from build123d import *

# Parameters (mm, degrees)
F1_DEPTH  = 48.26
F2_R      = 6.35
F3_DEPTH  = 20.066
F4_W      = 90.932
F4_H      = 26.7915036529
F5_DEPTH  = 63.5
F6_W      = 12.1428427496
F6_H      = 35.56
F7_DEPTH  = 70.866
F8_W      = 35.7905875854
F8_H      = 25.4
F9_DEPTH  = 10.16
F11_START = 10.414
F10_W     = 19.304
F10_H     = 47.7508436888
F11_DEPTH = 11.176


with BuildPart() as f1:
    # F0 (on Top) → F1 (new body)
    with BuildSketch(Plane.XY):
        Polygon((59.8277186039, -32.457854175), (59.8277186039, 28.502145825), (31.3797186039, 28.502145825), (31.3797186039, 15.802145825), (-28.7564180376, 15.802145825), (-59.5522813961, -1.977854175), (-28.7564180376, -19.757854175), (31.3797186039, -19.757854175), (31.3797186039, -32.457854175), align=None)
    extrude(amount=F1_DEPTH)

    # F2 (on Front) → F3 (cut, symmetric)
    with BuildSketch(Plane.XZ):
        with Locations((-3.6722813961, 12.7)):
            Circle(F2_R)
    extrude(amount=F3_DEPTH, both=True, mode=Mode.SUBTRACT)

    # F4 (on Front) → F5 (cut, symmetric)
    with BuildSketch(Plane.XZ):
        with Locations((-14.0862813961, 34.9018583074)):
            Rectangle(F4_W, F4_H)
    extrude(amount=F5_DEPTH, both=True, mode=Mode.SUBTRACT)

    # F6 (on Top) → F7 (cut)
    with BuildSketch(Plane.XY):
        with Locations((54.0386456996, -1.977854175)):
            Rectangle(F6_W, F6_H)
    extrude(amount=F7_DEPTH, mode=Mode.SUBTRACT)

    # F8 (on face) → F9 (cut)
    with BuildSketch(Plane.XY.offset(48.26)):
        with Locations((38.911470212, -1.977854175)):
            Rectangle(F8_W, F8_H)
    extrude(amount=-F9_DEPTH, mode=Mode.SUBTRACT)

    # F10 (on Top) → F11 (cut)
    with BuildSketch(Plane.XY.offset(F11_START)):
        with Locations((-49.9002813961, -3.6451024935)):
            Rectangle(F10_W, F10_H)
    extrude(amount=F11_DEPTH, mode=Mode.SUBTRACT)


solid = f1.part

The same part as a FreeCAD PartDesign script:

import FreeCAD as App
import Part
import Sketcher

V = App.Vector
Q = App.Units.Quantity


def add_polygon(sketch, points):
    """Adds a closed chain of lines whose ends are joined by coincident constraints."""
    first, n = sketch.GeometryCount, len(points)
    for a, b in zip(points, points[1:] + points[:1]):
        sketch.addGeometry(Part.LineSegment(App.Vector(*a, 0), App.Vector(*b, 0)), False)
    for i in range(n):
        sketch.addConstraint(Sketcher.Constraint("Coincident", first + i, 2, first + (i + 1) % n, 1))

doc = App.newDocument("Part")
body = doc.addObject("PartDesign::Body", "Body")

# Sketch on XY plane
sketch1 = doc.addObject("Sketcher::SketchObject", "Sketch")
body.addObject(sketch1)
sketch1.AttachmentSupport = (doc.XY_Plane, [""])
sketch1.MapMode = "FlatFace"
add_polygon(sketch1, [(59.827719, -32.457854), (59.827719, 28.502146), (31.379719, 28.502146), (31.379719, 15.802146), (-28.756418, 15.802146), (-59.552281, -1.977854), (-28.756418, -19.757854), (31.379719, -19.757854), (31.379719, -32.457854)])  # lines 0-8
sketch1.addConstraint([
    Sketcher.Constraint("Vertical", 0),
    Sketcher.Constraint("Horizontal", 1),
    Sketcher.Constraint("Vertical", 2),
    Sketcher.Constraint("Horizontal", 3),
    Sketcher.Constraint("Horizontal", 6),
    Sketcher.Constraint("Vertical", 7),
    Sketcher.Constraint("Horizontal", 8),
    Sketcher.Constraint("Vertical", 3, 2, 5, 2),
    Sketcher.Constraint("Vertical", 2, 2, 6, 2),
    Sketcher.Constraint("Equal", 2, 7),
    Sketcher.Constraint("Equal", 4, 5),
    Sketcher.Constraint("DistanceY", 0, 1, 0, 2, Q("2.4 in")),
    Sketcher.Constraint("DistanceY", 2, 2, 2, 1, Q("0.5 in")),
    Sketcher.Constraint("Angle", 4, Q("-150 deg")),
    Sketcher.Constraint("DistanceX", 1, 2, 1, 1, Q("1.12 in")),
    Sketcher.Constraint("DistanceX", 4, 2, 0, 2, Q("4.7 in")),
    Sketcher.Constraint("DistanceX", -1, 1, 0, 2, Q("59.827719 mm")),
    Sketcher.Constraint("DistanceY", -1, 1, 0, 2, Q("28.502146 mm")),
])
pad1 = doc.addObject("PartDesign::Pad", "Pad")
body.addObject(pad1)
pad1.Profile = sketch1
pad1.Length = Q("1.9 in")

# Sketch on XZ plane
sketch2 = doc.addObject("Sketcher::SketchObject", "Sketch001")
body.addObject(sketch2)
sketch2.AttachmentSupport = (doc.XZ_Plane, [""])
sketch2.MapMode = "FlatFace"
sketch2.addGeometry(Part.Circle(V(-3.672281, 12.7, 0), V(0, 0, 1), 6.35), False)
sketch2.addConstraint([
    Sketcher.Constraint("Diameter", 0, Q("0.5 in")),
    Sketcher.Constraint("DistanceY", -1, 1, 0, 3, Q("0.5 in")),
    Sketcher.Constraint("DistanceX", 0, 3, -1, 1, Q("3.672281 mm")),
])
pocket1 = doc.addObject("PartDesign::Pocket", "Pocket")
body.addObject(pocket1)
pocket1.Profile = sketch2
pocket1.Length = Q("1.58 in")
pocket1.Midplane = True

# Sketch on XZ plane
sketch3 = doc.addObject("Sketcher::SketchObject", "Sketch002")
body.addObject(sketch3)
sketch3.AttachmentSupport = (doc.XZ_Plane, [""])
sketch3.MapMode = "FlatFace"
add_polygon(sketch3, [(-59.552281, 48.29761), (-59.552281, 21.506106), (31.379719, 21.506106), (31.379719, 48.29761)])  # lines 0-3
sketch3.addConstraint([
    Sketcher.Constraint("Vertical", 0),
    Sketcher.Constraint("Horizontal", 1),
    Sketcher.Constraint("Vertical", 2),
    Sketcher.Constraint("Horizontal", 3),
    Sketcher.Constraint("DistanceX", 1, 1, 1, 2, Q("3.58 in")),
    Sketcher.Constraint("DistanceY", 0, 2, 0, 1, Q("26.791504 mm")),
    Sketcher.Constraint("DistanceX", 0, 2, -1, 1, Q("59.552281 mm")),
    Sketcher.Constraint("DistanceY", -1, 1, 2, 2, Q("48.29761 mm")),
])
pocket2 = doc.addObject("PartDesign::Pocket", "Pocket001")
body.addObject(pocket2)
pocket2.Profile = sketch3
pocket2.Length = Q("5 in")
pocket2.Midplane = True

# Sketch on XY plane
sketch4 = doc.addObject("Sketcher::SketchObject", "Sketch003")
body.addObject(sketch4)
sketch4.AttachmentSupport = (doc.XY_Plane, [""])
sketch4.MapMode = "FlatFace"
add_polygon(sketch4, [(47.967224, 15.802146), (47.967224, -19.757854), (60.110067, -19.757854), (60.110067, 15.802146)])  # lines 0-3
sketch4.addConstraint([
    Sketcher.Constraint("Vertical", 0),
    Sketcher.Constraint("Horizontal", 1),
    Sketcher.Constraint("Vertical", 2),
    Sketcher.Constraint("Horizontal", 3),
    Sketcher.Constraint("DistanceY", 0, 2, 0, 1, Q("1.4 in")),
    Sketcher.Constraint("DistanceX", 1, 1, 1, 2, Q("12.142843 mm")),
    Sketcher.Constraint("DistanceX", -1, 1, 0, 2, Q("47.967224 mm")),
    Sketcher.Constraint("DistanceY", 0, 2, -1, 1, Q("19.757854 mm")),
])
pocket3 = doc.addObject("PartDesign::Pocket", "Pocket002")
body.addObject(pocket3)
pocket3.Profile = sketch4
pocket3.Length = Q("2.79 in")
pocket3.Reversed = True

# Sketch on XY plane
sketch5 = doc.addObject("Sketcher::SketchObject", "Sketch004")
body.addObject(sketch5)
sketch5.AttachmentSupport = (doc.XY_Plane, [""])
sketch5.MapMode = "FlatFace"
sketch5.AttachmentOffset = App.Placement(V(0, 0, 1.9 * 25.4), App.Rotation())
add_polygon(sketch5, [(21.016176, 10.722146), (21.016176, -14.677854), (56.806764, -14.677854), (56.806764, 10.722146)])  # lines 0-3
sketch5.addConstraint([
    Sketcher.Constraint("Vertical", 0),
    Sketcher.Constraint("Horizontal", 1),
    Sketcher.Constraint("Vertical", 2),
    Sketcher.Constraint("Horizontal", 3),
    Sketcher.Constraint("DistanceY", 0, 2, 0, 1, Q("1 in")),
    Sketcher.Constraint("DistanceX", 1, 1, 1, 2, Q("35.790588 mm")),
    Sketcher.Constraint("DistanceX", -1, 1, 0, 2, Q("21.016176 mm")),
    Sketcher.Constraint("DistanceY", 0, 2, -1, 1, Q("14.677854 mm")),
])
pocket4 = doc.addObject("PartDesign::Pocket", "Pocket003")
body.addObject(pocket4)
pocket4.Profile = sketch5
pocket4.Length = Q("0.4 in")

# Sketch on XY plane
sketch6 = doc.addObject("Sketcher::SketchObject", "Sketch005")
body.addObject(sketch6)
sketch6.AttachmentSupport = (doc.XY_Plane, [""])
sketch6.MapMode = "FlatFace"
sketch6.AttachmentOffset = App.Placement(V(0, 0, 0.41 * 25.4), App.Rotation())
add_polygon(sketch6, [(-59.552281, 20.230319), (-59.552281, -27.520524), (-40.248281, -27.520524), (-40.248281, 20.230319)])  # lines 0-3
sketch6.addConstraint([
    Sketcher.Constraint("Vertical", 0),
    Sketcher.Constraint("Horizontal", 1),
    Sketcher.Constraint("Vertical", 2),
    Sketcher.Constraint("Horizontal", 3),
    Sketcher.Constraint("DistanceX", 1, 1, 1, 2, Q("0.76 in")),
    Sketcher.Constraint("DistanceY", 0, 2, 0, 1, Q("47.750844 mm")),
    Sketcher.Constraint("DistanceX", 0, 2, -1, 1, Q("59.552281 mm")),
    Sketcher.Constraint("DistanceY", -1, 1, 2, 2, Q("20.230319 mm")),
])
pocket5 = doc.addObject("PartDesign::Pocket", "Pocket004")
body.addObject(pocket5)
pocket5.Profile = sketch6
pocket5.Length = Q("0.44 in")
pocket5.Reversed = True

doc.recompute()
